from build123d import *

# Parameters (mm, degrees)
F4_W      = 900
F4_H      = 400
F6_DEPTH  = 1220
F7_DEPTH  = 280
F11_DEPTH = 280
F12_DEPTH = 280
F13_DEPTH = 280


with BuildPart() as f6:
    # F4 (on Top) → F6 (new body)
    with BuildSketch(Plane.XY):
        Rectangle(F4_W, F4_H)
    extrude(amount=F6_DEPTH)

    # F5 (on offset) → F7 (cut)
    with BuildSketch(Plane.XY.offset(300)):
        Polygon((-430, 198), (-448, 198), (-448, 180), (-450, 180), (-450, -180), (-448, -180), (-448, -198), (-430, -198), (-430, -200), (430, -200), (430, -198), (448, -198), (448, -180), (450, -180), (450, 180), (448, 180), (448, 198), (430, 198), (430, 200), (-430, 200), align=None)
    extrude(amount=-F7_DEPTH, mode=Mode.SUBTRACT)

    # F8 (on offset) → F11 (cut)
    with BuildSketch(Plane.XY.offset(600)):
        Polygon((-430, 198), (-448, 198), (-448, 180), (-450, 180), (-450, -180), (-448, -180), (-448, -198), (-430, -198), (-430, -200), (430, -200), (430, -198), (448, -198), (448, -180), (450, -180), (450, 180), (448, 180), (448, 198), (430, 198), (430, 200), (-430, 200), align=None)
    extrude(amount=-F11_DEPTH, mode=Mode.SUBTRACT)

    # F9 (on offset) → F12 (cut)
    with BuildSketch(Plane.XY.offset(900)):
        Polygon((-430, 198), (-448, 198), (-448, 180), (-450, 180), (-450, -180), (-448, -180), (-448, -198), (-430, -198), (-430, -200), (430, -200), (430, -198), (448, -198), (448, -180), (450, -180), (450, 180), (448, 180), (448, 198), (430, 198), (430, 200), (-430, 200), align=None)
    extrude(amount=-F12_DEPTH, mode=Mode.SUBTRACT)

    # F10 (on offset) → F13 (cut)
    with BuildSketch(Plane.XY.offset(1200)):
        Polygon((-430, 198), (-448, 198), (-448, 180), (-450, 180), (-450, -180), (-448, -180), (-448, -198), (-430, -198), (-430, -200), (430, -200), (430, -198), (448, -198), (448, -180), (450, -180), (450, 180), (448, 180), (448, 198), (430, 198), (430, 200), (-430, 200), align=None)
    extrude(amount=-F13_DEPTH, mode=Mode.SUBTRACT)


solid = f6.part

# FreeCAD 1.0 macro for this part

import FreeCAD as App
import Part
import Sketcher
Q = App.Units.Quantity


def add_polygon(sketch, points):
    """Adds a closed chain of lines whose ends are joined by coincident constraints."""
    first, n = sketch.GeometryCount, len(points)
    for a, b in zip(points, points[1:] + points[:1]):
        sketch.addGeometry(Part.LineSegment(App.Vector(*a, 0), App.Vector(*b, 0)), False)
    for i in range(n):
        sketch.addConstraint(Sketcher.Constraint("Coincident", first + i, 2, first + (i + 1) % n, 1))

doc = App.newDocument("Part")
params = doc.addObject("Spreadsheet::Sheet", "Params")
for row, (alias, value) in enumerate([
    ("sketch1_width", "900 mm"),
    ("sketch1_height", "400 mm"),
    ("pad1_length", "1220 mm"),
    ("sketch2_width", "18 mm"),
    ("sketch2_width2", "2 mm"),
    ("sketch2_width3", "860 mm"),
    ("sketch2_height", "360 mm"),
    ("pocket1_length", "280 mm"),
    ("sketch3_width", "18 mm"),
    ("sketch3_width2", "2 mm"),
    ("sketch3_width3", "860 mm"),
    ("sketch3_height", "360 mm"),
    ("pocket2_length", "280 mm"),
    ("sketch4_width", "18 mm"),
    ("sketch4_width2", "2 mm"),
    ("sketch4_width3", "860 mm"),
    ("sketch4_height", "360 mm"),
    ("pocket3_length", "280 mm"),
    ("sketch5_width", "18 mm"),
    ("sketch5_width2", "2 mm"),
    ("sketch5_width3", "860 mm"),
    ("sketch5_height", "360 mm"),
    ("pocket4_length", "280 mm"),
], start=1):
    params.set(f"A{row}", alias)
    params.set(f"B{row}", "=" + value)
    params.setAlias(f"B{row}", alias)

body = doc.addObject("PartDesign::Body", "Body")

# Sketch on XY plane
sketch1 = body.newObject("Sketcher::SketchObject", "Sketch")
sketch1.AttachmentSupport = (doc.getObject("XY_Plane"), [""])
sketch1.MapMode = "FlatFace"
add_polygon(sketch1, [(-450, 200), (-450, -200), (450, -200), (450, 200)])  # lines 0-3
sketch1.addConstraint(Sketcher.Constraint("Vertical", 0))
sketch1.addConstraint(Sketcher.Constraint("Horizontal", 1))
sketch1.addConstraint(Sketcher.Constraint("Vertical", 2))
sketch1.addConstraint(Sketcher.Constraint("Horizontal", 3))
sketch1.addConstraint(Sketcher.Constraint("Symmetric", 0, 2, 2, 2, -1, 1))
sketch1.addConstraint(Sketcher.Constraint("DistanceX", 1, 1, 1, 2, Q("900 mm")))
sketch1.addConstraint(Sketcher.Constraint("DistanceY", 0, 2, 0, 1, Q("400 mm")))
sketch1.setExpression("Constraints[9]", "Params.sketch1_width")
sketch1.setExpression("Constraints[10]", "Params.sketch1_height")
pad1 = body.newObject("PartDesign::Pad", "Pad")
pad1.Profile = sketch1
pad1.setExpression("Length", "Params.pad1_length")

# Sketch on XY plane
sketch2 = body.newObject("Sketcher::SketchObject", "Sketch001")
sketch2.AttachmentSupport = (doc.getObject("XY_Plane"), [""])
sketch2.MapMode = "FlatFace"
sketch2.AttachmentOffset = App.Placement(App.Vector(0, 0, 300), App.Rotation())
add_polygon(sketch2, [(-430, 198), (-448, 198), (-448, 180), (-450, 180), (-450, -180), (-448, -180), (-448, -198), (-430, -198), (-430, -200), (430, -200), (430, -198), (448, -198), (448, -180), (450, -180), (450, 180), (448, 180), (448, 198), (430, 198), (430, 200), (-430, 200)])  # lines 0-19
sketch2.addConstraint(Sketcher.Constraint("Horizontal", 0))
sketch2.addConstraint(Sketcher.Constraint("Vertical", 1))
sketch2.addConstraint(Sketcher.Constraint("Horizontal", 2))
sketch2.addConstraint(Sketcher.Constraint("Vertical", 3))
sketch2.addConstraint(Sketcher.Constraint("Horizontal", 4))
sketch2.addConstraint(Sketcher.Constraint("Vertical", 5))
sketch2.addConstraint(Sketcher.Constraint("Horizontal", 6))
sketch2.addConstraint(Sketcher.Constraint("Vertical", 7))
sketch2.addConstraint(Sketcher.Constraint("Horizontal", 8))
sketch2.addConstraint(Sketcher.Constraint("Vertical", 9))
sketch2.addConstraint(Sketcher.Constraint("Horizontal", 10))
sketch2.addConstraint(Sketcher.Constraint("Vertical", 11))
sketch2.addConstraint(Sketcher.Constraint("Horizontal", 12))
sketch2.addConstraint(Sketcher.Constraint("Vertical", 13))
sketch2.addConstraint(Sketcher.Constraint("Horizontal", 14))
sketch2.addConstraint(Sketcher.Constraint("Vertical", 15))
sketch2.addConstraint(Sketcher.Constraint("Horizontal", 16))
sketch2.addConstraint(Sketcher.Constraint("Vertical", 17))
sketch2.addConstraint(Sketcher.Constraint("Horizontal", 18))
sketch2.addConstraint(Sketcher.Constraint("Vertical", 19))
sketch2.addConstraint(Sketcher.Constraint("Symmetric", 0, 2, 10, 2, -1, 1))
sketch2.addConstraint(Sketcher.Constraint("Symmetric", 2, 2, 12, 2, -1, 1))
sketch2.addConstraint(Sketcher.Constraint("Symmetric", 4, 2, 14, 2, -1, 1))
sketch2.addConstraint(Sketcher.Constraint("Symmetric", 6, 2, 16, 2, -1, 1))
sketch2.addConstraint(Sketcher.Constraint("Symmetric", 8, 2, 18, 2, -1, 1))
sketch2.addConstraint(Sketcher.Constraint("Symmetric", 6, 2, 9, 2, -2))
sketch2.addConstraint(Sketcher.Constraint("Symmetric", 4, 2, 11, 2, -2))
sketch2.addConstraint(Sketcher.Constraint("Equal", 16, 1))
sketch2.addConstraint(Sketcher.Constraint("Equal", 14, 7))
sketch2.addConstraint(Sketcher.Constraint("DistanceX", 0, 2, 0, 1, Q("18 mm")))
sketch2.addConstraint(Sketcher.Constraint("DistanceX", 2, 2, 2, 1, Q("2 mm")))
sketch2.addConstraint(Sketcher.Constraint("DistanceX", 8, 1, 8, 2, Q("860 mm")))
sketch2.addConstraint(Sketcher.Constraint("DistanceY", 3, 2, 3, 1, Q("360 mm")))
sketch2.setExpression("Constraints[49]", "Params.sketch2_width")
sketch2.setExpression("Constraints[50]", "Params.sketch2_width2")
sketch2.setExpression("Constraints[51]", "Params.sketch2_width3")
sketch2.setExpression("Constraints[52]", "Params.sketch2_height")
pocket1 = body.newObject("PartDesign::Pocket", "Pocket")
pocket1.Profile = sketch2
pocket1.setExpression("Length", "Params.pocket1_length")

# Sketch on XY plane
sketch3 = body.newObject("Sketcher::SketchObject", "Sketch002")
sketch3.AttachmentSupport = (doc.getObject("XY_Plane"), [""])
sketch3.MapMode = "FlatFace"
sketch3.AttachmentOffset = App.Placement(App.Vector(0, 0, 600), App.Rotation())
add_polygon(sketch3, [(-430, 198), (-448, 198), (-448, 180), (-450, 180), (-450, -180), (-448, -180), (-448, -198), (-430, -198), (-430, -200), (430, -200), (430, -198), (448, -198), (448, -180), (450, -180), (450, 180), (448, 180), (448, 198), (430, 198), (430, 200), (-430, 200)])  # lines 0-19
sketch3.addConstraint(Sketcher.Constraint("Horizontal", 0))
sketch3.addConstraint(Sketcher.Constraint("Vertical", 1))
sketch3.addConstraint(Sketcher.Constraint("Horizontal", 2))
sketch3.addConstraint(Sketcher.Constraint("Vertical", 3))
sketch3.addConstraint(Sketcher.Constraint("Horizontal", 4))
sketch3.addConstraint(Sketcher.Constraint("Vertical", 5))
sketch3.addConstraint(Sketcher.Constraint("Horizontal", 6))
sketch3.addConstraint(Sketcher.Constraint("Vertical", 7))
sketch3.addConstraint(Sketcher.Constraint("Horizontal", 8))
sketch3.addConstraint(Sketcher.Constraint("Vertical", 9))
sketch3.addConstraint(Sketcher.Constraint("Horizontal", 10))
sketch3.addConstraint(Sketcher.Constraint("Vertical", 11))
sketch3.addConstraint(Sketcher.Constraint("Horizontal", 12))
sketch3.addConstraint(Sketcher.Constraint("Vertical", 13))
sketch3.addConstraint(Sketcher.Constraint("Horizontal", 14))
sketch3.addConstraint(Sketcher.Constraint("Vertical", 15))
sketch3.addConstraint(Sketcher.Constraint("Horizontal", 16))
sketch3.addConstraint(Sketcher.Constraint("Vertical", 17))
sketch3.addConstraint(Sketcher.Constraint("Horizontal", 18))
sketch3.addConstraint(Sketcher.Constraint("Vertical", 19))
sketch3.addConstraint(Sketcher.Constraint("Symmetric", 0, 2, 10, 2, -1, 1))
sketch3.addConstraint(Sketcher.Constraint("Symmetric", 2, 2, 12, 2, -1, 1))
sketch3.addConstraint(Sketcher.Constraint("Symmetric", 4, 2, 14, 2, -1, 1))
sketch3.addConstraint(Sketcher.Constraint("Symmetric", 6, 2, 16, 2, -1, 1))
sketch3.addConstraint(Sketcher.Constraint("Symmetric", 8, 2, 18, 2, -1, 1))
sketch3.addConstraint(Sketcher.Constraint("Symmetric", 6, 2, 9, 2, -2))
sketch3.addConstraint(Sketcher.Constraint("Symmetric", 4, 2, 11, 2, -2))
sketch3.addConstraint(Sketcher.Constraint("Equal", 16, 1))
sketch3.addConstraint(Sketcher.Constraint("Equal", 14, 7))
sketch3.addConstraint(Sketcher.Constraint("DistanceX", 0, 2, 0, 1, Q("18 mm")))
sketch3.addConstraint(Sketcher.Constraint("DistanceX", 2, 2, 2, 1, Q("2 mm")))
sketch3.addConstraint(Sketcher.Constraint("DistanceX", 8, 1, 8, 2, Q("860 mm")))
sketch3.addConstraint(Sketcher.Constraint("DistanceY", 3, 2, 3, 1, Q("360 mm")))
sketch3.setExpression("Constraints[49]", "Params.sketch3_width")
sketch3.setExpression("Constraints[50]", "Params.sketch3_width2")
sketch3.setExpression("Constraints[51]", "Params.sketch3_width3")
sketch3.setExpression("Constraints[52]", "Params.sketch3_height")
pocket2 = body.newObject("PartDesign::Pocket", "Pocket001")
pocket2.Profile = sketch3
pocket2.setExpression("Length", "Params.pocket2_length")

# Sketch on XY plane
sketch4 = body.newObject("Sketcher::SketchObject", "Sketch003")
sketch4.AttachmentSupport = (doc.getObject("XY_Plane"), [""])
sketch4.MapMode = "FlatFace"
sketch4.AttachmentOffset = App.Placement(App.Vector(0, 0, 900), App.Rotation())
add_polygon(sketch4, [(-430, 198), (-448, 198), (-448, 180), (-450, 180), (-450, -180), (-448, -180), (-448, -198), (-430, -198), (-430, -200), (430, -200), (430, -198), (448, -198), (448, -180), (450, -180), (450, 180), (448, 180), (448, 198), (430, 198), (430, 200), (-430, 200)])  # lines 0-19
sketch4.addConstraint(Sketcher.Constraint("Horizontal", 0))
sketch4.addConstraint(Sketcher.Constraint("Vertical", 1))
sketch4.addConstraint(Sketcher.Constraint("Horizontal", 2))
sketch4.addConstraint(Sketcher.Constraint("Vertical", 3))
sketch4.addConstraint(Sketcher.Constraint("Horizontal", 4))
sketch4.addConstraint(Sketcher.Constraint("Vertical", 5))
sketch4.addConstraint(Sketcher.Constraint("Horizontal", 6))
sketch4.addConstraint(Sketcher.Constraint("Vertical", 7))
sketch4.addConstraint(Sketcher.Constraint("Horizontal", 8))
sketch4.addConstraint(Sketcher.Constraint("Vertical", 9))
sketch4.addConstraint(Sketcher.Constraint("Horizontal", 10))
sketch4.addConstraint(Sketcher.Constraint("Vertical", 11))
sketch4.addConstraint(Sketcher.Constraint("Horizontal", 12))
sketch4.addConstraint(Sketcher.Constraint("Vertical", 13))
sketch4.addConstraint(Sketcher.Constraint("Horizontal", 14))
sketch4.addConstraint(Sketcher.Constraint("Vertical", 15))
sketch4.addConstraint(Sketcher.Constraint("Horizontal", 16))
sketch4.addConstraint(Sketcher.Constraint("Vertical", 17))
sketch4.addConstraint(Sketcher.Constraint("Horizontal", 18))
sketch4.addConstraint(Sketcher.Constraint("Vertical", 19))
sketch4.addConstraint(Sketcher.Constraint("Symmetric", 0, 2, 10, 2, -1, 1))
sketch4.addConstraint(Sketcher.Constraint("Symmetric", 2, 2, 12, 2, -1, 1))
sketch4.addConstraint(Sketcher.Constraint("Symmetric", 4, 2, 14, 2, -1, 1))
sketch4.addConstraint(Sketcher.Constraint("Symmetric", 6, 2, 16, 2, -1, 1))
sketch4.addConstraint(Sketcher.Constraint("Symmetric", 8, 2, 18, 2, -1, 1))
sketch4.addConstraint(Sketcher.Constraint("Symmetric", 6, 2, 9, 2, -2))
sketch4.addConstraint(Sketcher.Constraint("Symmetric", 4, 2, 11, 2, -2))
sketch4.addConstraint(Sketcher.Constraint("Equal", 16, 1))
sketch4.addConstraint(Sketcher.Constraint("Equal", 14, 7))
sketch4.addConstraint(Sketcher.Constraint("DistanceX", 0, 2, 0, 1, Q("18 mm")))
sketch4.addConstraint(Sketcher.Constraint("DistanceX", 2, 2, 2, 1, Q("2 mm")))
sketch4.addConstraint(Sketcher.Constraint("DistanceX", 8, 1, 8, 2, Q("860 mm")))
sketch4.addConstraint(Sketcher.Constraint("DistanceY", 3, 2, 3, 1, Q("360 mm")))
sketch4.setExpression("Constraints[49]", "Params.sketch4_width")
sketch4.setExpression("Constraints[50]", "Params.sketch4_width2")
sketch4.setExpression("Constraints[51]", "Params.sketch4_width3")
sketch4.setExpression("Constraints[52]", "Params.sketch4_height")
pocket3 = body.newObject("PartDesign::Pocket", "Pocket002")
pocket3.Profile = sketch4
pocket3.setExpression("Length", "Params.pocket3_length")

# Sketch on XY plane
sketch5 = body.newObject("Sketcher::SketchObject", "Sketch004")
sketch5.AttachmentSupport = (doc.getObject("XY_Plane"), [""])
sketch5.MapMode = "FlatFace"
sketch5.AttachmentOffset = App.Placement(App.Vector(0, 0, 1200), App.Rotation())
add_polygon(sketch5, [(-430, 198), (-448, 198), (-448, 180), (-450, 180), (-450, -180), (-448, -180), (-448, -198), (-430, -198), (-430, -200), (430, -200), (430, -198), (448, -198), (448, -180), (450, -180), (450, 180), (448, 180), (448, 198), (430, 198), (430, 200), (-430, 200)])  # lines 0-19
sketch5.addConstraint(Sketcher.Constraint("Horizontal", 0))
sketch5.addConstraint(Sketcher.Constraint("Vertical", 1))
sketch5.addConstraint(Sketcher.Constraint("Horizontal", 2))
sketch5.addConstraint(Sketcher.Constraint("Vertical", 3))
sketch5.addConstraint(Sketcher.Constraint("Horizontal", 4))
sketch5.addConstraint(Sketcher.Constraint("Vertical", 5))
sketch5.addConstraint(Sketcher.Constraint("Horizontal", 6))
sketch5.addConstraint(Sketcher.Constraint("Vertical", 7))
sketch5.addConstraint(Sketcher.Constraint("Horizontal", 8))
sketch5.addConstraint(Sketcher.Constraint("Vertical", 9))
sketch5.addConstraint(Sketcher.Constraint("Horizontal", 10))
sketch5.addConstraint(Sketcher.Constraint("Vertical", 11))
sketch5.addConstraint(Sketcher.Constraint("Horizontal", 12))
sketch5.addConstraint(Sketcher.Constraint("Vertical", 13))
sketch5.addConstraint(Sketcher.Constraint("Horizontal", 14))
sketch5.addConstraint(Sketcher.Constraint("Vertical", 15))
sketch5.addConstraint(Sketcher.Constraint("Horizontal", 16))
sketch5.addConstraint(Sketcher.Constraint("Vertical", 17))
sketch5.addConstraint(Sketcher.Constraint("Horizontal", 18))
sketch5.addConstraint(Sketcher.Constraint("Vertical", 19))
sketch5.addConstraint(Sketcher.Constraint("Symmetric", 0, 2, 10, 2, -1, 1))
sketch5.addConstraint(Sketcher.Constraint("Symmetric", 2, 2, 12, 2, -1, 1))
sketch5.addConstraint(Sketcher.Constraint("Symmetric", 4, 2, 14, 2, -1, 1))
sketch5.addConstraint(Sketcher.Constraint("Symmetric", 6, 2, 16, 2, -1, 1))
sketch5.addConstraint(Sketcher.Constraint("Symmetric", 8, 2, 18, 2, -1, 1))
sketch5.addConstraint(Sketcher.Constraint("Symmetric", 6, 2, 9, 2, -2))
sketch5.addConstraint(Sketcher.Constraint("Symmetric", 4, 2, 11, 2, -2))
sketch5.addConstraint(Sketcher.Constraint("Equal", 16, 1))
sketch5.addConstraint(Sketcher.Constraint("Equal", 14, 7))
sketch5.addConstraint(Sketcher.Constraint("DistanceX", 0, 2, 0, 1, Q("18 mm")))
sketch5.addConstraint(Sketcher.Constraint("DistanceX", 2, 2, 2, 1, Q("2 mm")))
sketch5.addConstraint(Sketcher.Constraint("DistanceX", 8, 1, 8, 2, Q("860 mm")))
sketch5.addConstraint(Sketcher.Constraint("DistanceY", 3, 2, 3, 1, Q("360 mm")))
sketch5.setExpression("Constraints[49]", "Params.sketch5_width")
sketch5.setExpression("Constraints[50]", "Params.sketch5_width2")
sketch5.setExpression("Constraints[51]", "Params.sketch5_width3")
sketch5.setExpression("Constraints[52]", "Params.sketch5_height")
pocket4 = body.newObject("PartDesign::Pocket", "Pocket003")
pocket4.Profile = sketch5
pocket4.setExpression("Length", "Params.pocket4_length")

doc.recompute()
